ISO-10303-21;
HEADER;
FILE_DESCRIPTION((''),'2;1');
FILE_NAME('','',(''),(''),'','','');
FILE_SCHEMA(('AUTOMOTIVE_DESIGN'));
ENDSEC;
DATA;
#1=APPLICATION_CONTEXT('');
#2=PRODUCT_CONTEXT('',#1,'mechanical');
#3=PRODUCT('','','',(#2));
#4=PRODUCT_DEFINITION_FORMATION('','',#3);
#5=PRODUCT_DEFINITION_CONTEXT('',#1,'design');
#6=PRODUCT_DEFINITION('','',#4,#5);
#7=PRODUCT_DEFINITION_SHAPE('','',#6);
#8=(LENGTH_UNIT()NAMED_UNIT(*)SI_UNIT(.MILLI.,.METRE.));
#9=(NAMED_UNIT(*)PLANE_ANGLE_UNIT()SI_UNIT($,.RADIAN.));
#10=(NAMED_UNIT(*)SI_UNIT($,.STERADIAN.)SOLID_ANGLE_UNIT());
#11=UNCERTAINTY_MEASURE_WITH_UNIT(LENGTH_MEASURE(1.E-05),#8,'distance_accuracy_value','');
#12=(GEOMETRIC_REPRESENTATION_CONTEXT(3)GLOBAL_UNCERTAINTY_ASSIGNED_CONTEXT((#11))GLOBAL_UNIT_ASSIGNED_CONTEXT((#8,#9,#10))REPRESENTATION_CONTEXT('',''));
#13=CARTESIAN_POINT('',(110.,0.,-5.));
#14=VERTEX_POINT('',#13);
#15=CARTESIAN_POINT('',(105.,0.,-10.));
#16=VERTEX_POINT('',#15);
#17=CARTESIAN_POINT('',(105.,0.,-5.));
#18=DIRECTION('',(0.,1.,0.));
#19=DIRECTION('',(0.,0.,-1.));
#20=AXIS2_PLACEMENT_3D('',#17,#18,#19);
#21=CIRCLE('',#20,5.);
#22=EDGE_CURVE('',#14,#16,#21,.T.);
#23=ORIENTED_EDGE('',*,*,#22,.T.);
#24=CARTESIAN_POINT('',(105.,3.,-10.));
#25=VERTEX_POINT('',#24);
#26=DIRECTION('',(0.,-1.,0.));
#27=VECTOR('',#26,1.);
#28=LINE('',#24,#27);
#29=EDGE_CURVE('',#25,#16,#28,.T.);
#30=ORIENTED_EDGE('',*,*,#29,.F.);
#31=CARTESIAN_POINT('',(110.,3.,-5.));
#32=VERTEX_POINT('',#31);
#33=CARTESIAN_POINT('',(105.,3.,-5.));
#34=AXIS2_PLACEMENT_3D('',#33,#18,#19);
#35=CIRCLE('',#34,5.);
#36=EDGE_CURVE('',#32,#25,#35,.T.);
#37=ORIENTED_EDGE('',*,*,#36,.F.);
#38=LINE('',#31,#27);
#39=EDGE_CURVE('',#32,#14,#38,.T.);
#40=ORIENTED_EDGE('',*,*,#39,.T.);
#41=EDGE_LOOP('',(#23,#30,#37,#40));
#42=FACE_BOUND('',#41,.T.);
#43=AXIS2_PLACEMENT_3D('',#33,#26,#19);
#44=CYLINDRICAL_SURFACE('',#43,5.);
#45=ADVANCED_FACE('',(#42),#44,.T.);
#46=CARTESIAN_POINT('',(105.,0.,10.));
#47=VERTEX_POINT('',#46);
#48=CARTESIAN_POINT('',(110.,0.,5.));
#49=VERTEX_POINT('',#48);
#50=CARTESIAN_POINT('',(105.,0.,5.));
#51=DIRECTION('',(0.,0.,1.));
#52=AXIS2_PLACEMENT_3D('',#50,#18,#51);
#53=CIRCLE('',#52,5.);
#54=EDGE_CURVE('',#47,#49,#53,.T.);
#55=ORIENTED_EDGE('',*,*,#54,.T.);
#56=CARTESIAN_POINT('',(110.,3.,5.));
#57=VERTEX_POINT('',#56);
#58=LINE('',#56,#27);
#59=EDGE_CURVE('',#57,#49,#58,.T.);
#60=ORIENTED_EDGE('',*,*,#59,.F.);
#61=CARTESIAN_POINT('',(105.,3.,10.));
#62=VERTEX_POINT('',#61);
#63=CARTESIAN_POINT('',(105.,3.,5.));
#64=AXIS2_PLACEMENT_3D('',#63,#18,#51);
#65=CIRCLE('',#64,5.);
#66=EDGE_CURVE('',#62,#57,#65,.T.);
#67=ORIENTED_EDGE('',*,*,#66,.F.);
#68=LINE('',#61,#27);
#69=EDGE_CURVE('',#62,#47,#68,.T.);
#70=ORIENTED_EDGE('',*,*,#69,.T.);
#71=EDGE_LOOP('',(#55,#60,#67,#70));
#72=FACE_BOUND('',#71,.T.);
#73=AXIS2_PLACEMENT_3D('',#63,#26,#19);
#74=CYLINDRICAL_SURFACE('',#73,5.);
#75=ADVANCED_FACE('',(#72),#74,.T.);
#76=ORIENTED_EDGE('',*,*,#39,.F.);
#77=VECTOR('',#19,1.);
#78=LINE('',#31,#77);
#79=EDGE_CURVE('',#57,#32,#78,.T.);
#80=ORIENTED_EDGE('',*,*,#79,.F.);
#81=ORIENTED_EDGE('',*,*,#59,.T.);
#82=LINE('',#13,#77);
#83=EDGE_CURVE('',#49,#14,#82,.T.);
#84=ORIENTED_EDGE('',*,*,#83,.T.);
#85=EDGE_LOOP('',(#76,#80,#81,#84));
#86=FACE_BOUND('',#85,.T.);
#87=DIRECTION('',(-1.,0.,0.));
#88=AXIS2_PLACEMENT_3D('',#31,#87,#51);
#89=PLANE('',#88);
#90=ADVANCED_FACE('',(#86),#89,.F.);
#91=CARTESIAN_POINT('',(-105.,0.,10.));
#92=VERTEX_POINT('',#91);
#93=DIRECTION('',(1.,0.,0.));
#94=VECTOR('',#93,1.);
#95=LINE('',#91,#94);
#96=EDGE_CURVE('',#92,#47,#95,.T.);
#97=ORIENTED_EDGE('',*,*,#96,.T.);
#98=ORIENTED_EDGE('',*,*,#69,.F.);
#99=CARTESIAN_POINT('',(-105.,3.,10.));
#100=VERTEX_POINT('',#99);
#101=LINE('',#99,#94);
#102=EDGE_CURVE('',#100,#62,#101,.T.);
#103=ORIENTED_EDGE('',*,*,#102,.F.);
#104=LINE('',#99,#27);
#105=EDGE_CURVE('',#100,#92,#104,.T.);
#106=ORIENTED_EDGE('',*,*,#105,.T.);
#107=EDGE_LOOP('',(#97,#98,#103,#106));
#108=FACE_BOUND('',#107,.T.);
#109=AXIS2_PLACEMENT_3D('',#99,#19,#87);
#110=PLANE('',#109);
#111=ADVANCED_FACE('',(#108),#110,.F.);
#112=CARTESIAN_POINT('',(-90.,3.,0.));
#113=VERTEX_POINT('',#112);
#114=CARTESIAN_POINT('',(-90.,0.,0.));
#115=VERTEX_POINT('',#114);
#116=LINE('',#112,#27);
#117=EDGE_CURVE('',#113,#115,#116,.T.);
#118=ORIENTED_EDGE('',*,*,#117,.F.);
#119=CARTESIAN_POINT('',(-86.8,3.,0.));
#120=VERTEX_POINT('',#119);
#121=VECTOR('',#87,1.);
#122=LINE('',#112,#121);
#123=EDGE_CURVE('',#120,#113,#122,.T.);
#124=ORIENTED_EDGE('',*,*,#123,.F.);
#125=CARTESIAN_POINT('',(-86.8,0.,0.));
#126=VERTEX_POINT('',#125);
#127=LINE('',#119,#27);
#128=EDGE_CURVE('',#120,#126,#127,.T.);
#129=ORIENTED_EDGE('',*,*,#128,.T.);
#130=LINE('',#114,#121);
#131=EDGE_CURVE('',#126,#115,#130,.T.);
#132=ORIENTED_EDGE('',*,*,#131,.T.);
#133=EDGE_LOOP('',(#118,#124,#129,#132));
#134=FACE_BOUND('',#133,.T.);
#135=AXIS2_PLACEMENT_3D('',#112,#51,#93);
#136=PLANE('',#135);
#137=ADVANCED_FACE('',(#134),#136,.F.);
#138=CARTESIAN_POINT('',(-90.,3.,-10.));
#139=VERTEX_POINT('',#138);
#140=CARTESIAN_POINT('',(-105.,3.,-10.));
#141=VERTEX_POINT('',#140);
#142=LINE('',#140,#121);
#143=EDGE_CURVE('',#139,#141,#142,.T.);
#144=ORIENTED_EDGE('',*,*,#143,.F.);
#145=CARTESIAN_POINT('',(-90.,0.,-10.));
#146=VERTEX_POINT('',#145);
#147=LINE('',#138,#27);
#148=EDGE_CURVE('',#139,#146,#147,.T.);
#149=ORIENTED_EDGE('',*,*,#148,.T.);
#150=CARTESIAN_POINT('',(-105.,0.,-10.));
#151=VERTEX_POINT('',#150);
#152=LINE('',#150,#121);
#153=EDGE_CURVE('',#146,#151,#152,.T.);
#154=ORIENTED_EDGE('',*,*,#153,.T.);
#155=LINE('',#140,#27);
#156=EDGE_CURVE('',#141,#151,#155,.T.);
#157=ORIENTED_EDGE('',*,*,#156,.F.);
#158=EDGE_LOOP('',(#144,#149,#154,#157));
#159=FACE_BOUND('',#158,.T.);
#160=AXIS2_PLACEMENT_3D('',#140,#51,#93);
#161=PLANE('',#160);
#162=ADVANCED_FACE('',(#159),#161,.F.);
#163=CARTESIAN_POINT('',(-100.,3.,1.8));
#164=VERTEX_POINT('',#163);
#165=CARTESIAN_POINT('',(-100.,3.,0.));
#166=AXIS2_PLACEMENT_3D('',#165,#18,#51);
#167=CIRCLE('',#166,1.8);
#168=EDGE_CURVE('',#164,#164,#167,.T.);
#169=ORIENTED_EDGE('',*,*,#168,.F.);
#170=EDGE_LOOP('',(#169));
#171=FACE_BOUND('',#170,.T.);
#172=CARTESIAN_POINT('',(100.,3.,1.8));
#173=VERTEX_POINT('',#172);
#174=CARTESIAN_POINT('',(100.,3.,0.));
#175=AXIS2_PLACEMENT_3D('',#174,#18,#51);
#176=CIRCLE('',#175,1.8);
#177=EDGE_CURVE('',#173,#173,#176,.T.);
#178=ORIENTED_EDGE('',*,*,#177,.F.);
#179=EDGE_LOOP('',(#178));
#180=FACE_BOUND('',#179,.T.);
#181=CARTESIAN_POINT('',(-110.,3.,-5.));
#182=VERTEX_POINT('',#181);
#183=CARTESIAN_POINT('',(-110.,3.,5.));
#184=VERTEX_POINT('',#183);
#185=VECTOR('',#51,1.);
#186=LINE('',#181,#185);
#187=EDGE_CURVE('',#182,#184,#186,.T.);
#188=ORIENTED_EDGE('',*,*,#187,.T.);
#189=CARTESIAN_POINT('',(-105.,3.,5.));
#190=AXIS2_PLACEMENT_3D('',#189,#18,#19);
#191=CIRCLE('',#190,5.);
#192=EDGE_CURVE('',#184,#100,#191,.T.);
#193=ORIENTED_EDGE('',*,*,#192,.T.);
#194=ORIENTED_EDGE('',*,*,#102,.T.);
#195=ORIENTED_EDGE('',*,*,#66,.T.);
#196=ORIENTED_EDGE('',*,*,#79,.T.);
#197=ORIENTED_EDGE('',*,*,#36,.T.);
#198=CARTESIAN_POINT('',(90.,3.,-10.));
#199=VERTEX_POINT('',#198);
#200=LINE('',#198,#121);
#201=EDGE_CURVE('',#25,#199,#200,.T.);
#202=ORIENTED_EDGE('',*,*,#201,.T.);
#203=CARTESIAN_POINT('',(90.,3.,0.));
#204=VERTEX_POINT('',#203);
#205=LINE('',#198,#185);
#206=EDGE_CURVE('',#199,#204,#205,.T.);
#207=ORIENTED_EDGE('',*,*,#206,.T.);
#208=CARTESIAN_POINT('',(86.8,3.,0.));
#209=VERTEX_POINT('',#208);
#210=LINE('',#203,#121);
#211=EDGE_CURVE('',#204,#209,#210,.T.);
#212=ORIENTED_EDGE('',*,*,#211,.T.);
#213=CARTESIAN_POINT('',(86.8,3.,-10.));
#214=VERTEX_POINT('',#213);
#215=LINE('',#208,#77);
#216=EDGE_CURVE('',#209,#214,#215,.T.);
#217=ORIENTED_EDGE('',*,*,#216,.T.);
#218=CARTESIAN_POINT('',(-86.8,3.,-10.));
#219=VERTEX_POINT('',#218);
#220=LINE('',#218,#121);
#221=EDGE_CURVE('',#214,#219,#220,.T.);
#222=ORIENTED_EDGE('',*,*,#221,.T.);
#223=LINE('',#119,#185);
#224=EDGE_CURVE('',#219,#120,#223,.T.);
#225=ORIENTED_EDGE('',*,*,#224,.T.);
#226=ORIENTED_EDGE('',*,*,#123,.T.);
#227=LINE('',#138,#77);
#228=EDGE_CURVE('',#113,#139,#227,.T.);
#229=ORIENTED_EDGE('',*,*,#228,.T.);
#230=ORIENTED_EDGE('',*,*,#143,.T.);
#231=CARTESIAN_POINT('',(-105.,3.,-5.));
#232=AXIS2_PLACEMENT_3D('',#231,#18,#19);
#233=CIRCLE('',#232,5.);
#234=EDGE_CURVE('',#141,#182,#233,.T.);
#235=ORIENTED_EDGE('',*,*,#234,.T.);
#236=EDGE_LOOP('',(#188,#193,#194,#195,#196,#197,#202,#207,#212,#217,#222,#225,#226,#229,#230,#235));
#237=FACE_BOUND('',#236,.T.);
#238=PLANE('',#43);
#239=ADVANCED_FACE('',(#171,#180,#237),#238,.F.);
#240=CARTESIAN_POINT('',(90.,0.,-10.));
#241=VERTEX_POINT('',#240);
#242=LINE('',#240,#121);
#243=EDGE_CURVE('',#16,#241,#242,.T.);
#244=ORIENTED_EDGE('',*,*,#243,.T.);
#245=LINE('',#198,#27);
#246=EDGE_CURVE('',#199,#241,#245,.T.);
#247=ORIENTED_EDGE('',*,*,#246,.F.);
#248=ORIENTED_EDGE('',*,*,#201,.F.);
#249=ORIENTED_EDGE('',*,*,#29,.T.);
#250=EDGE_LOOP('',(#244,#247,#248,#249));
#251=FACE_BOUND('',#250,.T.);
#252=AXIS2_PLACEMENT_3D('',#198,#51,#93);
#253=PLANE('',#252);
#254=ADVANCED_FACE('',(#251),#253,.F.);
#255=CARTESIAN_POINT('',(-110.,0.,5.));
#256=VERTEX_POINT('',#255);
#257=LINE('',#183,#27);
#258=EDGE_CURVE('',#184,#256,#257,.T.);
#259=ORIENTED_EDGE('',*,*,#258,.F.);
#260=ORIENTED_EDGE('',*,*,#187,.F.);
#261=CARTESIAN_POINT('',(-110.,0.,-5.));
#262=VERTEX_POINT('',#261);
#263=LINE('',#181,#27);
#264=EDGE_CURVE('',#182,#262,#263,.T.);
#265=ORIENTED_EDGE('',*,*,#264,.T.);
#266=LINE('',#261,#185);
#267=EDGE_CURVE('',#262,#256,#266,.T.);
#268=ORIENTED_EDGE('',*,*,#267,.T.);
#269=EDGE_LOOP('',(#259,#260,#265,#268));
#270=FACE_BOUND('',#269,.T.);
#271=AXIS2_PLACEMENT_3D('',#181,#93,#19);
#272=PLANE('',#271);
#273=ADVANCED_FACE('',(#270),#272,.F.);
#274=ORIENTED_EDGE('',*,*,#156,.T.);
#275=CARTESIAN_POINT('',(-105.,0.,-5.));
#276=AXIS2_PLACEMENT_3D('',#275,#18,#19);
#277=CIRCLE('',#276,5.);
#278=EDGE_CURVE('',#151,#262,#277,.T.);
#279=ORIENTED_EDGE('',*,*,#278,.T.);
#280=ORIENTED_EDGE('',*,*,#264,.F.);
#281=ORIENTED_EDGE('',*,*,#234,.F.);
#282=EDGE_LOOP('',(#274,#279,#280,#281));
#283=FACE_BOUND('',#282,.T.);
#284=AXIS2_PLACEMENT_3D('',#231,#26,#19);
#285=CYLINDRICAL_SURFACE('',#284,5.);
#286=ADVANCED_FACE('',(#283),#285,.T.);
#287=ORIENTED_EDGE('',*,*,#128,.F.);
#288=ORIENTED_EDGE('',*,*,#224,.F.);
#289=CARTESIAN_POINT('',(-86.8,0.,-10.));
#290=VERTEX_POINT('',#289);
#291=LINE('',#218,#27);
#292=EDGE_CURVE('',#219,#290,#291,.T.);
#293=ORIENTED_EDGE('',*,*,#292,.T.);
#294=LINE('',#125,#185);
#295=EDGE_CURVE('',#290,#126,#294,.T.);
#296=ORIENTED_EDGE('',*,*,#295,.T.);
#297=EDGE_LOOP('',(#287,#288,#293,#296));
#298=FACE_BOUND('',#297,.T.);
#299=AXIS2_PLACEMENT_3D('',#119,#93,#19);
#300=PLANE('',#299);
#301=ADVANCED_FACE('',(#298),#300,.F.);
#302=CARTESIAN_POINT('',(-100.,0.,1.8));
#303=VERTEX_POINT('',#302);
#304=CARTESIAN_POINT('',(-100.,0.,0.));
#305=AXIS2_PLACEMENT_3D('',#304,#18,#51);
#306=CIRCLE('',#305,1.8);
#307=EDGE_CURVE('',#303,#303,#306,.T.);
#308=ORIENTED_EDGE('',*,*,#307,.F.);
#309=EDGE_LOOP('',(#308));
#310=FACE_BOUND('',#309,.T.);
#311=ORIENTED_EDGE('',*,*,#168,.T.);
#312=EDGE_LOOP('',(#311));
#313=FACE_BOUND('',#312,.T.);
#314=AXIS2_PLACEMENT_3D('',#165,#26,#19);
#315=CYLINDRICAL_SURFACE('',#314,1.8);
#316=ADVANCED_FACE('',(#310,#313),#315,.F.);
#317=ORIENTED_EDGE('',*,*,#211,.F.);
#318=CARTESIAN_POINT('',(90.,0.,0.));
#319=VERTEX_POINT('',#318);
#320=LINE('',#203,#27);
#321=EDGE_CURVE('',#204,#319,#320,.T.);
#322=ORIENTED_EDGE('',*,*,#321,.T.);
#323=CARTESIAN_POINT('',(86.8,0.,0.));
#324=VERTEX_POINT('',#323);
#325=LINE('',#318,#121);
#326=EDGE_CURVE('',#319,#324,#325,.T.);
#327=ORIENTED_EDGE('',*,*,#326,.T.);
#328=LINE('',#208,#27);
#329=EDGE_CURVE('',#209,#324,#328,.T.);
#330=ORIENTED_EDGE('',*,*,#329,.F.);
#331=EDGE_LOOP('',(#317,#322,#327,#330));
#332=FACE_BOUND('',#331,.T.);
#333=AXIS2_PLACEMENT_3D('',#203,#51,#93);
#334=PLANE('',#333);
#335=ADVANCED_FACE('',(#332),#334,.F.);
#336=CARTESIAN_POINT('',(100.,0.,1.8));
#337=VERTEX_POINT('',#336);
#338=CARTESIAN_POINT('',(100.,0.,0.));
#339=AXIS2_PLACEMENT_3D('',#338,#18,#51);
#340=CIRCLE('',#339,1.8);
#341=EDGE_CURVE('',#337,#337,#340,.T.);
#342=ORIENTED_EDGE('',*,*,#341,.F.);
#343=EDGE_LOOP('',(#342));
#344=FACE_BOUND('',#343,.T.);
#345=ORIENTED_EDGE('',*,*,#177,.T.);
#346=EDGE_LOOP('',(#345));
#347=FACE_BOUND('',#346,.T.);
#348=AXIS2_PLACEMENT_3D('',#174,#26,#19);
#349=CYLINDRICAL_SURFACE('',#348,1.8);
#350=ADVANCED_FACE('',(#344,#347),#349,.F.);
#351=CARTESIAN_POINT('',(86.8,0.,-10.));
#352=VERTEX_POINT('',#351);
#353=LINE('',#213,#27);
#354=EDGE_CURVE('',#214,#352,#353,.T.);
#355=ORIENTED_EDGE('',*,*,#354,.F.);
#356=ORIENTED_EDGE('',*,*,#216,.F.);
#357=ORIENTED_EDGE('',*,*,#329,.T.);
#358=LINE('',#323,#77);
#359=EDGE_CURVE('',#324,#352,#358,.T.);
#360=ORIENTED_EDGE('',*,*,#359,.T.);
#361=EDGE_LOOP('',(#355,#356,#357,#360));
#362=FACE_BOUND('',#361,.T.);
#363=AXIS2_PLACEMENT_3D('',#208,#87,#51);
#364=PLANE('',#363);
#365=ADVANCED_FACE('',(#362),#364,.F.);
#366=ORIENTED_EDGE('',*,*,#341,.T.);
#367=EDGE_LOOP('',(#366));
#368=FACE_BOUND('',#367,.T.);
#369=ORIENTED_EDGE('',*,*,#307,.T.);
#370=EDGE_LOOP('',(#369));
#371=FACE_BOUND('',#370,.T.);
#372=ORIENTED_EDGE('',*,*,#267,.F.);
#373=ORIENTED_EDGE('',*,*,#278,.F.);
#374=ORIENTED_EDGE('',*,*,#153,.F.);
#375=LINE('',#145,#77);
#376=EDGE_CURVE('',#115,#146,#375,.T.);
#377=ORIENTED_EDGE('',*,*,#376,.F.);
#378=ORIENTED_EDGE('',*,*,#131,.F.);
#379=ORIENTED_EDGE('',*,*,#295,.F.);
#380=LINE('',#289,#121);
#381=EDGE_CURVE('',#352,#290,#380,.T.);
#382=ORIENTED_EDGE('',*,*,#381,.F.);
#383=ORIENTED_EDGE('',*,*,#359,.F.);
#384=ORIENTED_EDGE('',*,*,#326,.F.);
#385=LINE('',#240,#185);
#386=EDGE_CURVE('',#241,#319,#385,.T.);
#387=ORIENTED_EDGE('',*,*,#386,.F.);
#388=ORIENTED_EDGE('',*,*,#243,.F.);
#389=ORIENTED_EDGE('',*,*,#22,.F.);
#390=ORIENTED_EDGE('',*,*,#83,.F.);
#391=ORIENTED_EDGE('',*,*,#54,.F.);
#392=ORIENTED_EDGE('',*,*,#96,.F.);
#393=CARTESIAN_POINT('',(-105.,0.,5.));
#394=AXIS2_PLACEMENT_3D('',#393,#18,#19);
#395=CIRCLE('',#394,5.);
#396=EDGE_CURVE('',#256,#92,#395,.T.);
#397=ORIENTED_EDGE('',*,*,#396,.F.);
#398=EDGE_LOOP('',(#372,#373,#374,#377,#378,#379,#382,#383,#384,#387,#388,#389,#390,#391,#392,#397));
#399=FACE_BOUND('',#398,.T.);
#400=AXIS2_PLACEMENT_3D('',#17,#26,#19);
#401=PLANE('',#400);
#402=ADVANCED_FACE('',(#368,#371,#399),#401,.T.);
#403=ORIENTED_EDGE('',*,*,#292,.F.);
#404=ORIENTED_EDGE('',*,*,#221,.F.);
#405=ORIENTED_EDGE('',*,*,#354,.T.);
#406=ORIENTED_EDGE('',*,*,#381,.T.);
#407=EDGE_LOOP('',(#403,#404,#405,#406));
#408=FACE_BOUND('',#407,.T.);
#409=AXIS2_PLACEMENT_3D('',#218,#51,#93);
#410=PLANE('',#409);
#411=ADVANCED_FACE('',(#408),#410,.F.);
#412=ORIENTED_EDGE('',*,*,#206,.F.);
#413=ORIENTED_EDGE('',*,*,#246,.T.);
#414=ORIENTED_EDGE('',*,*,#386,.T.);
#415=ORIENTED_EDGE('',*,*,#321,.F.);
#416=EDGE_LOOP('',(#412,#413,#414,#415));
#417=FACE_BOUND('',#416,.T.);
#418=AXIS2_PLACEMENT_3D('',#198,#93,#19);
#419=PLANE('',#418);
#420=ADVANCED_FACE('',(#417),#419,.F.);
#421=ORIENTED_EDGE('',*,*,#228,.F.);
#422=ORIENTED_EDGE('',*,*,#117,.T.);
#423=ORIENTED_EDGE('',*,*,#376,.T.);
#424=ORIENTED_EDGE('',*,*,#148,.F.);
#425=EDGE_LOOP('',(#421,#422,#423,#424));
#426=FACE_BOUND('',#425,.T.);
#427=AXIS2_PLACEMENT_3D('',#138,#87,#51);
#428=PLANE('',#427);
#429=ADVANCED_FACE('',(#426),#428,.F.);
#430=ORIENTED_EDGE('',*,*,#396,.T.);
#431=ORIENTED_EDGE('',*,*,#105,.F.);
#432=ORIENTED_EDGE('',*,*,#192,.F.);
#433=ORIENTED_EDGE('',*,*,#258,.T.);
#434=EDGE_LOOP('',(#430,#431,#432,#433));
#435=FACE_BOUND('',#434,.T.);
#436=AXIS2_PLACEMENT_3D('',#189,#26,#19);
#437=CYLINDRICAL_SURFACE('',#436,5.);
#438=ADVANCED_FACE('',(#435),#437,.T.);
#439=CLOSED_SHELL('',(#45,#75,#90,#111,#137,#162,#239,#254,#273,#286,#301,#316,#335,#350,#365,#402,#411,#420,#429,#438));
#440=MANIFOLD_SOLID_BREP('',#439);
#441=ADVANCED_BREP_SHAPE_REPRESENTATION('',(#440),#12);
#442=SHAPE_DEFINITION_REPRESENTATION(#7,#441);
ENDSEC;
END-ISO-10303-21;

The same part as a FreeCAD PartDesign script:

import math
import FreeCAD as App
import Part
import Sketcher

V = App.Vector

doc = App.newDocument("Part")
params = doc.addObject("Spreadsheet::Sheet", "Params")
for row, (alias, value) in enumerate([
    ("sketch1_radius", "5 mm"),
    ("sketch1_diameter", "3.6 mm"),
    ("sketch1_width", "15 mm"),
    ("sketch1_width2", "210 mm"),
    ("sketch1_width3", "3.2 mm"),
    ("pad1_length", "3 mm"),
], start=1):
    params.set(f"A{row}", alias)
    params.set(f"B{row}", "=" + value)
    params.setAlias(f"B{row}", alias)

body = doc.addObject("PartDesign::Body", "Body")

sketch1 = body.newObject("Sketcher::SketchObject", "Sketch")
sketch1.AttachmentSupport = (doc.getObject("XZ_Plane"), [""])
sketch1.MapMode = "FlatFace"
sketch1.addGeometry(Part.LineSegment(V(-90, 0, 0), V(-90, -10, 0)), False)
sketch1.addGeometry(Part.LineSegment(V(-90, -10, 0), V(-105, -10, 0)), False)
sketch1.addGeometry(Part.ArcOfCircle(Part.Circle(V(-105, -5, 0), V(0, 0, 1), 5), math.radians(180), math.radians(270)), False)
sketch1.addGeometry(Part.LineSegment(V(-110, -5, 0), V(-110, 5, 0)), False)
sketch1.addGeometry(Part.ArcOfCircle(Part.Circle(V(-105, 5, 0), V(0, 0, 1), 5), math.radians(90), math.radians(180)), False)
sketch1.addGeometry(Part.LineSegment(V(-105, 10, 0), V(105, 10, 0)), False)
sketch1.addGeometry(Part.ArcOfCircle(Part.Circle(V(105, 5, 0), V(0, 0, 1), 5), math.radians(0), math.radians(90)), False)
sketch1.addGeometry(Part.LineSegment(V(110, 5, 0), V(110, -5, 0)), False)
sketch1.addGeometry(Part.ArcOfCircle(Part.Circle(V(105, -5, 0), V(0, 0, 1), 5), math.radians(-90), math.radians(0)), False)
sketch1.addGeometry(Part.LineSegment(V(105, -10, 0), V(90, -10, 0)), False)
sketch1.addGeometry(Part.LineSegment(V(90, -10, 0), V(90, 0, 0)), False)
sketch1.addGeometry(Part.LineSegment(V(90, 0, 0), V(86.8, 0, 0)), False)
sketch1.addGeometry(Part.LineSegment(V(86.8, 0, 0), V(86.8, -10, 0)), False)
sketch1.addGeometry(Part.LineSegment(V(86.8, -10, 0), V(-86.8, -10, 0)), False)
sketch1.addGeometry(Part.LineSegment(V(-86.8, -10, 0), V(-86.8, 0, 0)), False)
sketch1.addGeometry(Part.LineSegment(V(-86.8, 0, 0), V(-90, 0, 0)), False)
sketch1.addGeometry(Part.Circle(V(100, 0, 0), V(0, 0, 1), 1.8), False)
sketch1.addGeometry(Part.Circle(V(-100, 0, 0), V(0, 0, 1), 1.8), False)
sketch1.addConstraint(Sketcher.Constraint("Coincident", 0, 2, 1, 1))
sketch1.addConstraint(Sketcher.Constraint("Tangent", 1, 2, 2, 2))
sketch1.addConstraint(Sketcher.Constraint("Tangent", 2, 1, 3, 1))
sketch1.addConstraint(Sketcher.Constraint("Tangent", 3, 2, 4, 2))
sketch1.addConstraint(Sketcher.Constraint("Tangent", 4, 1, 5, 1))
sketch1.addConstraint(Sketcher.Constraint("Tangent", 5, 2, 6, 2))
sketch1.addConstraint(Sketcher.Constraint("Tangent", 6, 1, 7, 1))
sketch1.addConstraint(Sketcher.Constraint("Tangent", 7, 2, 8, 2))
sketch1.addConstraint(Sketcher.Constraint("Tangent", 8, 1, 9, 1))
sketch1.addConstraint(Sketcher.Constraint("Coincident", 9, 2, 10, 1))
sketch1.addConstraint(Sketcher.Constraint("Coincident", 10, 2, 11, 1))
sketch1.addConstraint(Sketcher.Constraint("Coincident", 11, 2, 12, 1))
sketch1.addConstraint(Sketcher.Constraint("Coincident", 12, 2, 13, 1))
sketch1.addConstraint(Sketcher.Constraint("Coincident", 13, 2, 14, 1))
sketch1.addConstraint(Sketcher.Constraint("Coincident", 14, 2, 15, 1))
sketch1.addConstraint(Sketcher.Constraint("Coincident", 15, 2, 0, 1))
sketch1.addConstraint(Sketcher.Constraint("Vertical", 0))
sketch1.addConstraint(Sketcher.Constraint("Horizontal", 1))
sketch1.addConstraint(Sketcher.Constraint("Vertical", 3))
sketch1.addConstraint(Sketcher.Constraint("Horizontal", 5))
sketch1.addConstraint(Sketcher.Constraint("Vertical", 7))
sketch1.addConstraint(Sketcher.Constraint("Horizontal", 9))
sketch1.addConstraint(Sketcher.Constraint("Vertical", 10))
sketch1.addConstraint(Sketcher.Constraint("Horizontal", 11))
sketch1.addConstraint(Sketcher.Constraint("Vertical", 12))
sketch1.addConstraint(Sketcher.Constraint("Horizontal", 13))
sketch1.addConstraint(Sketcher.Constraint("Vertical", 14))
sketch1.addConstraint(Sketcher.Constraint("Horizontal", 15))
sketch1.addConstraint(Sketcher.Constraint("Equal", 2, 4))
sketch1.addConstraint(Sketcher.Constraint("Equal", 4, 6))
sketch1.addConstraint(Sketcher.Constraint("Equal", 6, 8))
sketch1.addConstraint(Sketcher.Constraint("Equal", 16, 17))
sketch1.addConstraint(Sketcher.Constraint("Symmetric", 2, 3, 6, 3, -1, 1))
sketch1.addConstraint(Sketcher.Constraint("Symmetric", 16, 3, 17, 3, -1, 1))
sketch1.addConstraint(Sketcher.Constraint("Symmetric", 11, 2, 14, 2, -1, 1))
sketch1.addConstraint(Sketcher.Constraint("Symmetric", 0, 2, 9, 2, -2))
sketch1.addConstraint(Sketcher.Constraint("PointOnObject", 16, 3, -1))
sketch1.addConstraint(Sketcher.Constraint("PointOnObject", 10, 2, -1))
sketch1.addConstraint(Sketcher.Constraint("Horizontal", 9, 2, 12, 2))
sketch1.addConstraint(Sketcher.Constraint("Equal", 0, 3))
sketch1.addConstraint(Sketcher.Constraint("Radius", 2, 5.0))
sketch1.addConstraint(Sketcher.Constraint("Diameter", 16, 3.6))
sketch1.addConstraint(Sketcher.Constraint("DistanceX", 1, 2, 1, 1, 15.0))
sketch1.addConstraint(Sketcher.Constraint("DistanceX", 5, 1, 5, 2, 210.0))
sketch1.addConstraint(Sketcher.Constraint("DistanceX", 11, 2, 11, 1, 3.2))
sketch1.addConstraint(Sketcher.Constraint("DistanceX", -1, 1, 16, 3, 100.0))
sketch1.setExpression("Constraints[40]", "Params.sketch1_radius")
sketch1.setExpression("Constraints[41]", "Params.sketch1_diameter")
sketch1.setExpression("Constraints[42]", "Params.sketch1_width")
sketch1.setExpression("Constraints[43]", "Params.sketch1_width2")
sketch1.setExpression("Constraints[44]", "Params.sketch1_width3")
pad1 = body.newObject("PartDesign::Pad", "Pad")
pad1.Profile = sketch1
pad1.setExpression("Length", "Params.pad1_length")
pad1.Reversed = True

doc.recompute()
